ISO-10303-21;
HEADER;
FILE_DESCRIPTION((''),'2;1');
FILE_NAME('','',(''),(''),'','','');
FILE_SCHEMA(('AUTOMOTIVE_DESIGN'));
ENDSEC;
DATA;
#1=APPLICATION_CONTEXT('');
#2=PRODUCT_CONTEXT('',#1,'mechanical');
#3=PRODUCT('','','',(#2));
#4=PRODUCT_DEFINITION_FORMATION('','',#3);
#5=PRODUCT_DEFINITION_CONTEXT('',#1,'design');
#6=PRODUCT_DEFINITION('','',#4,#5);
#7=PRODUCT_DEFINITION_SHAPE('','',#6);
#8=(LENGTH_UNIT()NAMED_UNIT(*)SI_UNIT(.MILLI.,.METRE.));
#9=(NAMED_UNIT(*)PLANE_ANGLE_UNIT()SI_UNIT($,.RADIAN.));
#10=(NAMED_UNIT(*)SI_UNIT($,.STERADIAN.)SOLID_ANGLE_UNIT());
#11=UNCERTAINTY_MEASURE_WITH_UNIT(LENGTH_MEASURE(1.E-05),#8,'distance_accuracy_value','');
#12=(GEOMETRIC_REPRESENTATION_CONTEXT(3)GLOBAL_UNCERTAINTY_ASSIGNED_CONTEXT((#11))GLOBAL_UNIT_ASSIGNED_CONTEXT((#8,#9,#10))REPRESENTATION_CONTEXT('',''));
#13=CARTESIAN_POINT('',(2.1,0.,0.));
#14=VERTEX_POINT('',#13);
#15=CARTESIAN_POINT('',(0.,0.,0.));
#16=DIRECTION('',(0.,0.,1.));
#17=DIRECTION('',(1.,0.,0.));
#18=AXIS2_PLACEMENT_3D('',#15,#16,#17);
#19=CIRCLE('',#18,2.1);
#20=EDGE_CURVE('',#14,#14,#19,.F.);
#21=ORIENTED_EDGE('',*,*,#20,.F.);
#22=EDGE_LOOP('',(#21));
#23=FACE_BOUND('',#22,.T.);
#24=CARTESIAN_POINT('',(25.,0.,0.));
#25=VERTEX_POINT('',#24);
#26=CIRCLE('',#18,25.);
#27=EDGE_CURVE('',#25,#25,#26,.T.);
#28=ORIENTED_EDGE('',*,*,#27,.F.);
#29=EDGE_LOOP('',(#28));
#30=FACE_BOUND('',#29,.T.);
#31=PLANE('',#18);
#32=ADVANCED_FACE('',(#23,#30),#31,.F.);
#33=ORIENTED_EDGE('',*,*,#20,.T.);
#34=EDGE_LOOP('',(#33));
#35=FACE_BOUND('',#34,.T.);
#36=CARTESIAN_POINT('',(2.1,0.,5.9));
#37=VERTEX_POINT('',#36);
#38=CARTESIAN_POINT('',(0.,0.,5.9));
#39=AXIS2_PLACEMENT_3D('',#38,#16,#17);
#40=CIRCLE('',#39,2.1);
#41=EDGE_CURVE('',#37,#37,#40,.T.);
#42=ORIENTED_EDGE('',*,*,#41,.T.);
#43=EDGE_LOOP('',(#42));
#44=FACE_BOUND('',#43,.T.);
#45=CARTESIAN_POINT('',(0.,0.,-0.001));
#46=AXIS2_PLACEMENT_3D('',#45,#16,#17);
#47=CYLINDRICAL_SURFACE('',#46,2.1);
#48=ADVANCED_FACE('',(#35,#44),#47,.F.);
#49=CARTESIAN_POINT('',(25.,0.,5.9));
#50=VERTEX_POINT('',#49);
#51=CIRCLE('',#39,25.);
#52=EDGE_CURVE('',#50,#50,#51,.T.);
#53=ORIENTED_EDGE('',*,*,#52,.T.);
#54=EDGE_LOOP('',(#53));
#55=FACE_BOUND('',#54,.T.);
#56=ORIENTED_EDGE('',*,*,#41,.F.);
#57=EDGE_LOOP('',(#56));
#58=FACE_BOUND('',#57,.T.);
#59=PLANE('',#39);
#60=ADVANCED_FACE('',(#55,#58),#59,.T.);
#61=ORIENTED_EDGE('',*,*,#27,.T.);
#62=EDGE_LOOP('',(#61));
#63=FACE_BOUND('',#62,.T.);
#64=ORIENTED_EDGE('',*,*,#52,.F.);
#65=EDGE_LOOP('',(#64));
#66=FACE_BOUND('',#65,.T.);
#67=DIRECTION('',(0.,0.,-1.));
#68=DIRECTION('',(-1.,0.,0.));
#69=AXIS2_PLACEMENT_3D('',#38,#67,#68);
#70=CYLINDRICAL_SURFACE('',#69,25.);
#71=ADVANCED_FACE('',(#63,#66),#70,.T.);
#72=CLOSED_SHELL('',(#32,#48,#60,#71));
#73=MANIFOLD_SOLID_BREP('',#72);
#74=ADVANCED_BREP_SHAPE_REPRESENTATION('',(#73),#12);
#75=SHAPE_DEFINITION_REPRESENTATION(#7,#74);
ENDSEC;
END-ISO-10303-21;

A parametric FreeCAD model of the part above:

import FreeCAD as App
import Part
import Sketcher

V = App.Vector
Q = App.Units.Quantity

doc = App.newDocument("Part")
params = doc.addObject("Spreadsheet::Sheet", "Params")
for row, (alias, value) in enumerate([
    ("sketch1_diameter", "50 mm"),
    ("pad1_length", "5.9 mm"),
    ("sketch2_diameter", "4.2 mm"),
], start=1):
    params.set(f"A{row}", alias)
    params.set(f"B{row}", "=" + value)
    params.setAlias(f"B{row}", alias)

body = doc.addObject("PartDesign::Body", "Body")

sketch1 = body.newObject("Sketcher::SketchObject", "Sketch")
sketch1.AttachmentSupport = (doc.getObject("XY_Plane"), [""])
sketch1.MapMode = "FlatFace"
sketch1.addGeometry(Part.Circle(V(0, 0, 0), V(0, 0, 1), 25), False)
sketch1.addConstraint([
    Sketcher.Constraint("Coincident", 0, 3, -1, 1),
    Sketcher.Constraint("Diameter", 0, Q("50 mm")),
])
sketch1.setExpression("Constraints[1]", "Params.sketch1_diameter")
pad1 = body.newObject("PartDesign::Pad", "Pad")
pad1.Profile = sketch1
pad1.setExpression("Length", "Params.pad1_length")

sketch2 = body.newObject("Sketcher::SketchObject", "Sketch001")
sketch2.AttachmentSupport = (doc.getObject("XY_Plane"), [""])
sketch2.MapMode = "FlatFace"
sketch2.AttachmentOffset = App.Placement(V(0, 0, 5.9), App.Rotation())
sketch2.addGeometry(Part.Circle(V(0, 0, 0), V(0, 0, 1), 2.1), False)
sketch2.addConstraint([
    Sketcher.Constraint("Coincident", 0, 3, -1, 1),
    Sketcher.Constraint("Diameter", 0, Q("4.2 mm")),
])
sketch2.setExpression("Constraints[1]", "Params.sketch2_diameter")
pocket1 = body.newObject("PartDesign::Pocket", "Pocket")
pocket1.Profile = sketch2
pocket1.Type = "UpToFirst"

doc.recompute()
